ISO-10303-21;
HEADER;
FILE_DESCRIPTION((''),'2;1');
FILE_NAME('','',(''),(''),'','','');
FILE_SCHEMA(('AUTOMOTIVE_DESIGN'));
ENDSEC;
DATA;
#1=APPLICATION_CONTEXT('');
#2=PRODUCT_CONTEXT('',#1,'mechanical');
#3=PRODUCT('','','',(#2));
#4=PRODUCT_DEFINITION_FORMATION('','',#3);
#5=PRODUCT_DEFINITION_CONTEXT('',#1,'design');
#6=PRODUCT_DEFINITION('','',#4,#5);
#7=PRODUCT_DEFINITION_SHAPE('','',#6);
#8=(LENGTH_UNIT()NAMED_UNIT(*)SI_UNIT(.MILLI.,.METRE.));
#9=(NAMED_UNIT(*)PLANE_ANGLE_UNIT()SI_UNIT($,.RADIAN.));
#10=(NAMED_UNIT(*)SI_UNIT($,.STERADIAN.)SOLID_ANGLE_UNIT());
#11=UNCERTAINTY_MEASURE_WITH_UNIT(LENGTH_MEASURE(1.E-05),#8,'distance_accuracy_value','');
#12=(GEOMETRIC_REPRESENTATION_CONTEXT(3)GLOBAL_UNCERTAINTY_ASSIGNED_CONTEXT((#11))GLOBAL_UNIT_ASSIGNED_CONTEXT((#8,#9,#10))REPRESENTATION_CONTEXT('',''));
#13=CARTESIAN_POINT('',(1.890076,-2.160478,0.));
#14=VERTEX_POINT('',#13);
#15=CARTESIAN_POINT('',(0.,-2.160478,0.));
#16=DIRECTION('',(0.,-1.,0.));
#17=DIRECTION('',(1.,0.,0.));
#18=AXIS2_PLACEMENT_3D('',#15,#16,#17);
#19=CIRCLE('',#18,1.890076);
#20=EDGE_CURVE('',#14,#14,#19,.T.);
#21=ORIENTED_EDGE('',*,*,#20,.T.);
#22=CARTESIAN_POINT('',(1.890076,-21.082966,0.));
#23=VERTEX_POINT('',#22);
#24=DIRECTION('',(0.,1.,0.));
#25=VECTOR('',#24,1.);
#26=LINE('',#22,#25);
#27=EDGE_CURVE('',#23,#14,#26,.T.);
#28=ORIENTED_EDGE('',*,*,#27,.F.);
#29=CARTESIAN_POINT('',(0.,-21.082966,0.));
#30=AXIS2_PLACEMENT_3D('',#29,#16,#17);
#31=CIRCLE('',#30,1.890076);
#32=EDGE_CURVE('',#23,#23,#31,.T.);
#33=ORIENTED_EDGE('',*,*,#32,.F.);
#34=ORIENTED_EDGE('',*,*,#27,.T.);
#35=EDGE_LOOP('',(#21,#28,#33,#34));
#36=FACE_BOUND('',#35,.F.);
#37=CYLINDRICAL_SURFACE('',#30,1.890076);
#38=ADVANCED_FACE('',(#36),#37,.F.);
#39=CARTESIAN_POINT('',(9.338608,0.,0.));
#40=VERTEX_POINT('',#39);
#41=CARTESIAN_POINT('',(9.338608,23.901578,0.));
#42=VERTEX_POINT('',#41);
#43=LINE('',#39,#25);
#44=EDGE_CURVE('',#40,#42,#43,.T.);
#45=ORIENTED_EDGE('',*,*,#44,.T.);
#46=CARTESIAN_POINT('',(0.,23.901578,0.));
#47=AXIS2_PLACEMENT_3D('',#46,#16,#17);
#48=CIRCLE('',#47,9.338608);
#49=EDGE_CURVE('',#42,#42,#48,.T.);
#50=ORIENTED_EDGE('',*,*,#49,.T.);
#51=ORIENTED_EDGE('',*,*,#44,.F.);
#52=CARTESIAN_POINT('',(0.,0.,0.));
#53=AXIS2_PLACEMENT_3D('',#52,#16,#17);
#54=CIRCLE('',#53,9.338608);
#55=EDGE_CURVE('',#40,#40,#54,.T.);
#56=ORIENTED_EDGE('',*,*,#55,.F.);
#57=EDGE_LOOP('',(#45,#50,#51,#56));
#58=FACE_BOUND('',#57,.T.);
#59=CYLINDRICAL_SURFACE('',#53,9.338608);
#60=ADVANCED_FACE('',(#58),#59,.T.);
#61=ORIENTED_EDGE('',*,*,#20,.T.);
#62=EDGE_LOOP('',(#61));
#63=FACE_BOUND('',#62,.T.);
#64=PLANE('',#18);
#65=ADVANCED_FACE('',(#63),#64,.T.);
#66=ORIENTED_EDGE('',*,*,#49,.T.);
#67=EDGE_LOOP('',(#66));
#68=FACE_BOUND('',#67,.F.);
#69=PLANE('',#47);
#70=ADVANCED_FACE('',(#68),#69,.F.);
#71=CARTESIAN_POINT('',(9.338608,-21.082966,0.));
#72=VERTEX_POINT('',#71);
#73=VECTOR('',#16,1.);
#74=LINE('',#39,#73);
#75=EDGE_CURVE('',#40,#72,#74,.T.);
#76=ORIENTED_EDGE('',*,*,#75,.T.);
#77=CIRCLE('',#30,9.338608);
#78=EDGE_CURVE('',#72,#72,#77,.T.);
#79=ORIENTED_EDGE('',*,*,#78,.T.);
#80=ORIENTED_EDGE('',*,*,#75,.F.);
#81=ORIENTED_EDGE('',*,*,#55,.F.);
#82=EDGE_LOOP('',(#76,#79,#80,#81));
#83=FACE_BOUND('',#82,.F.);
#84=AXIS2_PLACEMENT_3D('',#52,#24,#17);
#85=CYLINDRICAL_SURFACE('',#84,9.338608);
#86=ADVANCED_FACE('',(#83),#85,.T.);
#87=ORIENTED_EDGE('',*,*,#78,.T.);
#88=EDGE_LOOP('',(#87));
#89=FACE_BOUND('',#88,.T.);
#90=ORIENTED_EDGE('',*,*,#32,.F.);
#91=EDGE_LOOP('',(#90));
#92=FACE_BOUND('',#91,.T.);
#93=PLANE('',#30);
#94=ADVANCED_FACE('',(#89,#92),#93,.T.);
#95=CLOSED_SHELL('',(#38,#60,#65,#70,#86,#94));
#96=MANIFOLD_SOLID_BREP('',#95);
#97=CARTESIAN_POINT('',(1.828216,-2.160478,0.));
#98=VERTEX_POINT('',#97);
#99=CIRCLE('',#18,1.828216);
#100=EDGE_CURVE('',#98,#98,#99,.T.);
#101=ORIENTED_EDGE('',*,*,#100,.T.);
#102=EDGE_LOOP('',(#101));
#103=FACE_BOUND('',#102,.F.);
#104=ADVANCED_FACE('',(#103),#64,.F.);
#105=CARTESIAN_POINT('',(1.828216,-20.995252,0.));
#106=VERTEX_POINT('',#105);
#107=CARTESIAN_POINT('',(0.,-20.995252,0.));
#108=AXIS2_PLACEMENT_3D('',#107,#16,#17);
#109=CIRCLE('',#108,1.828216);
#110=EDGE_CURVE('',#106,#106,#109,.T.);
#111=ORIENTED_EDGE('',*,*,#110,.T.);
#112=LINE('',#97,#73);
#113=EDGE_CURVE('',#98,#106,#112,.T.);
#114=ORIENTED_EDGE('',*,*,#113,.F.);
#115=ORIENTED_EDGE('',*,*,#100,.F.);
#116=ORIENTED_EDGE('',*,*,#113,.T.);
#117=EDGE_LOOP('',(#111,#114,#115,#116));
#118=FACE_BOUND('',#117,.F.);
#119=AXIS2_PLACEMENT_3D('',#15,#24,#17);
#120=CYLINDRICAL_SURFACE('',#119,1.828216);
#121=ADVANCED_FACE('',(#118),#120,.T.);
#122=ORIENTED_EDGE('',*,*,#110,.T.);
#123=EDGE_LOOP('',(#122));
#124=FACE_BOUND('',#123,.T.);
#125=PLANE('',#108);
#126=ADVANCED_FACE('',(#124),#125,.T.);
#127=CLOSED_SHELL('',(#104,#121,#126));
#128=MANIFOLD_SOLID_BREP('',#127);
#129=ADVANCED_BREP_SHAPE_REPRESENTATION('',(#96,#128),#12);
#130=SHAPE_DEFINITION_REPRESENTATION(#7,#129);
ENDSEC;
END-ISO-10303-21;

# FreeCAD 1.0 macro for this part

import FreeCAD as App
import Part
import Sketcher
from FreeCAD import Vector

doc = App.newDocument("Part")
params = doc.addObject("Spreadsheet::Sheet", "Params")
for row, (alias, value) in enumerate([
    ("pad1_length", "23.901578 mm"),
    ("pad1_length2", "21.082966 mm"),
    ("pocket1_length", "18.922487 mm"),
    ("pad2_length", "18.834773 mm"),
], start=1):
    params.set(f"A{row}", alias)
    params.set(f"B{row}", "=" + value)
    params.setAlias(f"B{row}", alias)

body = doc.addObject("PartDesign::Body", "Body")

# Sketch on XZ plane
sketch1 = body.newObject("Sketcher::SketchObject", "Sketch")
sketch1.AttachmentSupport = (doc.getObject("XZ_Plane"), [""])
sketch1.MapMode = "FlatFace"
sketch1.addGeometry(Part.Circle(Vector(0, 0, 0), Vector(0, 0, 1), 9.338608), False)
sketch1.addConstraint([
    Sketcher.Constraint("Coincident", 0, 3, -1, 1),
    Sketcher.Constraint("Diameter", 0, 18.677215),
])
pad1 = body.newObject("PartDesign::Pad", "Pad")
pad1.Profile = sketch1
pad1.Type = "TwoLengths"
pad1.setExpression("Length", "Params.pad1_length")
pad1.setExpression("Length2", "Params.pad1_length2")
pad1.Reversed = True

# Sketch on XZ plane
sketch2 = body.newObject("Sketcher::SketchObject", "Sketch001")
sketch2.AttachmentSupport = (doc.getObject("XZ_Plane"), [""])
sketch2.MapMode = "FlatFace"
sketch2.AttachmentOffset = App.Placement(Vector(0, 0, 21.082966), App.Rotation())
sketch2.addGeometry(Part.Circle(Vector(0, 0, 0), Vector(0, 0, 1), 1.890076), False)
sketch2.addConstraint([
    Sketcher.Constraint("Coincident", 0, 3, -1, 1),
    Sketcher.Constraint("Diameter", 0, 3.780152),
])
pocket1 = body.newObject("PartDesign::Pocket", "Pocket")
pocket1.Profile = sketch2
pocket1.setExpression("Length", "Params.pocket1_length")
body2 = doc.addObject("PartDesign::Body", "Body001")

# Sketch on XZ plane
sketch3 = body2.newObject("Sketcher::SketchObject", "Sketch002")
sketch3.AttachmentSupport = (doc.getObject("XZ_Plane001"), [""])
sketch3.MapMode = "FlatFace"
sketch3.AttachmentOffset = App.Placement(Vector(0, 0, 2.160478), App.Rotation())
sketch3.addGeometry(Part.Circle(Vector(0, 0, 0), Vector(0, 0, 1), 1.828216), False)
sketch3.addConstraint([
    Sketcher.Constraint("Coincident", 0, 3, -1, 1),
    Sketcher.Constraint("Diameter", 0, 3.656432),
])
pad2 = body2.newObject("PartDesign::Pad", "Pad001")
pad2.Profile = sketch3
pad2.setExpression("Length", "Params.pad2_length")

doc.recompute()
